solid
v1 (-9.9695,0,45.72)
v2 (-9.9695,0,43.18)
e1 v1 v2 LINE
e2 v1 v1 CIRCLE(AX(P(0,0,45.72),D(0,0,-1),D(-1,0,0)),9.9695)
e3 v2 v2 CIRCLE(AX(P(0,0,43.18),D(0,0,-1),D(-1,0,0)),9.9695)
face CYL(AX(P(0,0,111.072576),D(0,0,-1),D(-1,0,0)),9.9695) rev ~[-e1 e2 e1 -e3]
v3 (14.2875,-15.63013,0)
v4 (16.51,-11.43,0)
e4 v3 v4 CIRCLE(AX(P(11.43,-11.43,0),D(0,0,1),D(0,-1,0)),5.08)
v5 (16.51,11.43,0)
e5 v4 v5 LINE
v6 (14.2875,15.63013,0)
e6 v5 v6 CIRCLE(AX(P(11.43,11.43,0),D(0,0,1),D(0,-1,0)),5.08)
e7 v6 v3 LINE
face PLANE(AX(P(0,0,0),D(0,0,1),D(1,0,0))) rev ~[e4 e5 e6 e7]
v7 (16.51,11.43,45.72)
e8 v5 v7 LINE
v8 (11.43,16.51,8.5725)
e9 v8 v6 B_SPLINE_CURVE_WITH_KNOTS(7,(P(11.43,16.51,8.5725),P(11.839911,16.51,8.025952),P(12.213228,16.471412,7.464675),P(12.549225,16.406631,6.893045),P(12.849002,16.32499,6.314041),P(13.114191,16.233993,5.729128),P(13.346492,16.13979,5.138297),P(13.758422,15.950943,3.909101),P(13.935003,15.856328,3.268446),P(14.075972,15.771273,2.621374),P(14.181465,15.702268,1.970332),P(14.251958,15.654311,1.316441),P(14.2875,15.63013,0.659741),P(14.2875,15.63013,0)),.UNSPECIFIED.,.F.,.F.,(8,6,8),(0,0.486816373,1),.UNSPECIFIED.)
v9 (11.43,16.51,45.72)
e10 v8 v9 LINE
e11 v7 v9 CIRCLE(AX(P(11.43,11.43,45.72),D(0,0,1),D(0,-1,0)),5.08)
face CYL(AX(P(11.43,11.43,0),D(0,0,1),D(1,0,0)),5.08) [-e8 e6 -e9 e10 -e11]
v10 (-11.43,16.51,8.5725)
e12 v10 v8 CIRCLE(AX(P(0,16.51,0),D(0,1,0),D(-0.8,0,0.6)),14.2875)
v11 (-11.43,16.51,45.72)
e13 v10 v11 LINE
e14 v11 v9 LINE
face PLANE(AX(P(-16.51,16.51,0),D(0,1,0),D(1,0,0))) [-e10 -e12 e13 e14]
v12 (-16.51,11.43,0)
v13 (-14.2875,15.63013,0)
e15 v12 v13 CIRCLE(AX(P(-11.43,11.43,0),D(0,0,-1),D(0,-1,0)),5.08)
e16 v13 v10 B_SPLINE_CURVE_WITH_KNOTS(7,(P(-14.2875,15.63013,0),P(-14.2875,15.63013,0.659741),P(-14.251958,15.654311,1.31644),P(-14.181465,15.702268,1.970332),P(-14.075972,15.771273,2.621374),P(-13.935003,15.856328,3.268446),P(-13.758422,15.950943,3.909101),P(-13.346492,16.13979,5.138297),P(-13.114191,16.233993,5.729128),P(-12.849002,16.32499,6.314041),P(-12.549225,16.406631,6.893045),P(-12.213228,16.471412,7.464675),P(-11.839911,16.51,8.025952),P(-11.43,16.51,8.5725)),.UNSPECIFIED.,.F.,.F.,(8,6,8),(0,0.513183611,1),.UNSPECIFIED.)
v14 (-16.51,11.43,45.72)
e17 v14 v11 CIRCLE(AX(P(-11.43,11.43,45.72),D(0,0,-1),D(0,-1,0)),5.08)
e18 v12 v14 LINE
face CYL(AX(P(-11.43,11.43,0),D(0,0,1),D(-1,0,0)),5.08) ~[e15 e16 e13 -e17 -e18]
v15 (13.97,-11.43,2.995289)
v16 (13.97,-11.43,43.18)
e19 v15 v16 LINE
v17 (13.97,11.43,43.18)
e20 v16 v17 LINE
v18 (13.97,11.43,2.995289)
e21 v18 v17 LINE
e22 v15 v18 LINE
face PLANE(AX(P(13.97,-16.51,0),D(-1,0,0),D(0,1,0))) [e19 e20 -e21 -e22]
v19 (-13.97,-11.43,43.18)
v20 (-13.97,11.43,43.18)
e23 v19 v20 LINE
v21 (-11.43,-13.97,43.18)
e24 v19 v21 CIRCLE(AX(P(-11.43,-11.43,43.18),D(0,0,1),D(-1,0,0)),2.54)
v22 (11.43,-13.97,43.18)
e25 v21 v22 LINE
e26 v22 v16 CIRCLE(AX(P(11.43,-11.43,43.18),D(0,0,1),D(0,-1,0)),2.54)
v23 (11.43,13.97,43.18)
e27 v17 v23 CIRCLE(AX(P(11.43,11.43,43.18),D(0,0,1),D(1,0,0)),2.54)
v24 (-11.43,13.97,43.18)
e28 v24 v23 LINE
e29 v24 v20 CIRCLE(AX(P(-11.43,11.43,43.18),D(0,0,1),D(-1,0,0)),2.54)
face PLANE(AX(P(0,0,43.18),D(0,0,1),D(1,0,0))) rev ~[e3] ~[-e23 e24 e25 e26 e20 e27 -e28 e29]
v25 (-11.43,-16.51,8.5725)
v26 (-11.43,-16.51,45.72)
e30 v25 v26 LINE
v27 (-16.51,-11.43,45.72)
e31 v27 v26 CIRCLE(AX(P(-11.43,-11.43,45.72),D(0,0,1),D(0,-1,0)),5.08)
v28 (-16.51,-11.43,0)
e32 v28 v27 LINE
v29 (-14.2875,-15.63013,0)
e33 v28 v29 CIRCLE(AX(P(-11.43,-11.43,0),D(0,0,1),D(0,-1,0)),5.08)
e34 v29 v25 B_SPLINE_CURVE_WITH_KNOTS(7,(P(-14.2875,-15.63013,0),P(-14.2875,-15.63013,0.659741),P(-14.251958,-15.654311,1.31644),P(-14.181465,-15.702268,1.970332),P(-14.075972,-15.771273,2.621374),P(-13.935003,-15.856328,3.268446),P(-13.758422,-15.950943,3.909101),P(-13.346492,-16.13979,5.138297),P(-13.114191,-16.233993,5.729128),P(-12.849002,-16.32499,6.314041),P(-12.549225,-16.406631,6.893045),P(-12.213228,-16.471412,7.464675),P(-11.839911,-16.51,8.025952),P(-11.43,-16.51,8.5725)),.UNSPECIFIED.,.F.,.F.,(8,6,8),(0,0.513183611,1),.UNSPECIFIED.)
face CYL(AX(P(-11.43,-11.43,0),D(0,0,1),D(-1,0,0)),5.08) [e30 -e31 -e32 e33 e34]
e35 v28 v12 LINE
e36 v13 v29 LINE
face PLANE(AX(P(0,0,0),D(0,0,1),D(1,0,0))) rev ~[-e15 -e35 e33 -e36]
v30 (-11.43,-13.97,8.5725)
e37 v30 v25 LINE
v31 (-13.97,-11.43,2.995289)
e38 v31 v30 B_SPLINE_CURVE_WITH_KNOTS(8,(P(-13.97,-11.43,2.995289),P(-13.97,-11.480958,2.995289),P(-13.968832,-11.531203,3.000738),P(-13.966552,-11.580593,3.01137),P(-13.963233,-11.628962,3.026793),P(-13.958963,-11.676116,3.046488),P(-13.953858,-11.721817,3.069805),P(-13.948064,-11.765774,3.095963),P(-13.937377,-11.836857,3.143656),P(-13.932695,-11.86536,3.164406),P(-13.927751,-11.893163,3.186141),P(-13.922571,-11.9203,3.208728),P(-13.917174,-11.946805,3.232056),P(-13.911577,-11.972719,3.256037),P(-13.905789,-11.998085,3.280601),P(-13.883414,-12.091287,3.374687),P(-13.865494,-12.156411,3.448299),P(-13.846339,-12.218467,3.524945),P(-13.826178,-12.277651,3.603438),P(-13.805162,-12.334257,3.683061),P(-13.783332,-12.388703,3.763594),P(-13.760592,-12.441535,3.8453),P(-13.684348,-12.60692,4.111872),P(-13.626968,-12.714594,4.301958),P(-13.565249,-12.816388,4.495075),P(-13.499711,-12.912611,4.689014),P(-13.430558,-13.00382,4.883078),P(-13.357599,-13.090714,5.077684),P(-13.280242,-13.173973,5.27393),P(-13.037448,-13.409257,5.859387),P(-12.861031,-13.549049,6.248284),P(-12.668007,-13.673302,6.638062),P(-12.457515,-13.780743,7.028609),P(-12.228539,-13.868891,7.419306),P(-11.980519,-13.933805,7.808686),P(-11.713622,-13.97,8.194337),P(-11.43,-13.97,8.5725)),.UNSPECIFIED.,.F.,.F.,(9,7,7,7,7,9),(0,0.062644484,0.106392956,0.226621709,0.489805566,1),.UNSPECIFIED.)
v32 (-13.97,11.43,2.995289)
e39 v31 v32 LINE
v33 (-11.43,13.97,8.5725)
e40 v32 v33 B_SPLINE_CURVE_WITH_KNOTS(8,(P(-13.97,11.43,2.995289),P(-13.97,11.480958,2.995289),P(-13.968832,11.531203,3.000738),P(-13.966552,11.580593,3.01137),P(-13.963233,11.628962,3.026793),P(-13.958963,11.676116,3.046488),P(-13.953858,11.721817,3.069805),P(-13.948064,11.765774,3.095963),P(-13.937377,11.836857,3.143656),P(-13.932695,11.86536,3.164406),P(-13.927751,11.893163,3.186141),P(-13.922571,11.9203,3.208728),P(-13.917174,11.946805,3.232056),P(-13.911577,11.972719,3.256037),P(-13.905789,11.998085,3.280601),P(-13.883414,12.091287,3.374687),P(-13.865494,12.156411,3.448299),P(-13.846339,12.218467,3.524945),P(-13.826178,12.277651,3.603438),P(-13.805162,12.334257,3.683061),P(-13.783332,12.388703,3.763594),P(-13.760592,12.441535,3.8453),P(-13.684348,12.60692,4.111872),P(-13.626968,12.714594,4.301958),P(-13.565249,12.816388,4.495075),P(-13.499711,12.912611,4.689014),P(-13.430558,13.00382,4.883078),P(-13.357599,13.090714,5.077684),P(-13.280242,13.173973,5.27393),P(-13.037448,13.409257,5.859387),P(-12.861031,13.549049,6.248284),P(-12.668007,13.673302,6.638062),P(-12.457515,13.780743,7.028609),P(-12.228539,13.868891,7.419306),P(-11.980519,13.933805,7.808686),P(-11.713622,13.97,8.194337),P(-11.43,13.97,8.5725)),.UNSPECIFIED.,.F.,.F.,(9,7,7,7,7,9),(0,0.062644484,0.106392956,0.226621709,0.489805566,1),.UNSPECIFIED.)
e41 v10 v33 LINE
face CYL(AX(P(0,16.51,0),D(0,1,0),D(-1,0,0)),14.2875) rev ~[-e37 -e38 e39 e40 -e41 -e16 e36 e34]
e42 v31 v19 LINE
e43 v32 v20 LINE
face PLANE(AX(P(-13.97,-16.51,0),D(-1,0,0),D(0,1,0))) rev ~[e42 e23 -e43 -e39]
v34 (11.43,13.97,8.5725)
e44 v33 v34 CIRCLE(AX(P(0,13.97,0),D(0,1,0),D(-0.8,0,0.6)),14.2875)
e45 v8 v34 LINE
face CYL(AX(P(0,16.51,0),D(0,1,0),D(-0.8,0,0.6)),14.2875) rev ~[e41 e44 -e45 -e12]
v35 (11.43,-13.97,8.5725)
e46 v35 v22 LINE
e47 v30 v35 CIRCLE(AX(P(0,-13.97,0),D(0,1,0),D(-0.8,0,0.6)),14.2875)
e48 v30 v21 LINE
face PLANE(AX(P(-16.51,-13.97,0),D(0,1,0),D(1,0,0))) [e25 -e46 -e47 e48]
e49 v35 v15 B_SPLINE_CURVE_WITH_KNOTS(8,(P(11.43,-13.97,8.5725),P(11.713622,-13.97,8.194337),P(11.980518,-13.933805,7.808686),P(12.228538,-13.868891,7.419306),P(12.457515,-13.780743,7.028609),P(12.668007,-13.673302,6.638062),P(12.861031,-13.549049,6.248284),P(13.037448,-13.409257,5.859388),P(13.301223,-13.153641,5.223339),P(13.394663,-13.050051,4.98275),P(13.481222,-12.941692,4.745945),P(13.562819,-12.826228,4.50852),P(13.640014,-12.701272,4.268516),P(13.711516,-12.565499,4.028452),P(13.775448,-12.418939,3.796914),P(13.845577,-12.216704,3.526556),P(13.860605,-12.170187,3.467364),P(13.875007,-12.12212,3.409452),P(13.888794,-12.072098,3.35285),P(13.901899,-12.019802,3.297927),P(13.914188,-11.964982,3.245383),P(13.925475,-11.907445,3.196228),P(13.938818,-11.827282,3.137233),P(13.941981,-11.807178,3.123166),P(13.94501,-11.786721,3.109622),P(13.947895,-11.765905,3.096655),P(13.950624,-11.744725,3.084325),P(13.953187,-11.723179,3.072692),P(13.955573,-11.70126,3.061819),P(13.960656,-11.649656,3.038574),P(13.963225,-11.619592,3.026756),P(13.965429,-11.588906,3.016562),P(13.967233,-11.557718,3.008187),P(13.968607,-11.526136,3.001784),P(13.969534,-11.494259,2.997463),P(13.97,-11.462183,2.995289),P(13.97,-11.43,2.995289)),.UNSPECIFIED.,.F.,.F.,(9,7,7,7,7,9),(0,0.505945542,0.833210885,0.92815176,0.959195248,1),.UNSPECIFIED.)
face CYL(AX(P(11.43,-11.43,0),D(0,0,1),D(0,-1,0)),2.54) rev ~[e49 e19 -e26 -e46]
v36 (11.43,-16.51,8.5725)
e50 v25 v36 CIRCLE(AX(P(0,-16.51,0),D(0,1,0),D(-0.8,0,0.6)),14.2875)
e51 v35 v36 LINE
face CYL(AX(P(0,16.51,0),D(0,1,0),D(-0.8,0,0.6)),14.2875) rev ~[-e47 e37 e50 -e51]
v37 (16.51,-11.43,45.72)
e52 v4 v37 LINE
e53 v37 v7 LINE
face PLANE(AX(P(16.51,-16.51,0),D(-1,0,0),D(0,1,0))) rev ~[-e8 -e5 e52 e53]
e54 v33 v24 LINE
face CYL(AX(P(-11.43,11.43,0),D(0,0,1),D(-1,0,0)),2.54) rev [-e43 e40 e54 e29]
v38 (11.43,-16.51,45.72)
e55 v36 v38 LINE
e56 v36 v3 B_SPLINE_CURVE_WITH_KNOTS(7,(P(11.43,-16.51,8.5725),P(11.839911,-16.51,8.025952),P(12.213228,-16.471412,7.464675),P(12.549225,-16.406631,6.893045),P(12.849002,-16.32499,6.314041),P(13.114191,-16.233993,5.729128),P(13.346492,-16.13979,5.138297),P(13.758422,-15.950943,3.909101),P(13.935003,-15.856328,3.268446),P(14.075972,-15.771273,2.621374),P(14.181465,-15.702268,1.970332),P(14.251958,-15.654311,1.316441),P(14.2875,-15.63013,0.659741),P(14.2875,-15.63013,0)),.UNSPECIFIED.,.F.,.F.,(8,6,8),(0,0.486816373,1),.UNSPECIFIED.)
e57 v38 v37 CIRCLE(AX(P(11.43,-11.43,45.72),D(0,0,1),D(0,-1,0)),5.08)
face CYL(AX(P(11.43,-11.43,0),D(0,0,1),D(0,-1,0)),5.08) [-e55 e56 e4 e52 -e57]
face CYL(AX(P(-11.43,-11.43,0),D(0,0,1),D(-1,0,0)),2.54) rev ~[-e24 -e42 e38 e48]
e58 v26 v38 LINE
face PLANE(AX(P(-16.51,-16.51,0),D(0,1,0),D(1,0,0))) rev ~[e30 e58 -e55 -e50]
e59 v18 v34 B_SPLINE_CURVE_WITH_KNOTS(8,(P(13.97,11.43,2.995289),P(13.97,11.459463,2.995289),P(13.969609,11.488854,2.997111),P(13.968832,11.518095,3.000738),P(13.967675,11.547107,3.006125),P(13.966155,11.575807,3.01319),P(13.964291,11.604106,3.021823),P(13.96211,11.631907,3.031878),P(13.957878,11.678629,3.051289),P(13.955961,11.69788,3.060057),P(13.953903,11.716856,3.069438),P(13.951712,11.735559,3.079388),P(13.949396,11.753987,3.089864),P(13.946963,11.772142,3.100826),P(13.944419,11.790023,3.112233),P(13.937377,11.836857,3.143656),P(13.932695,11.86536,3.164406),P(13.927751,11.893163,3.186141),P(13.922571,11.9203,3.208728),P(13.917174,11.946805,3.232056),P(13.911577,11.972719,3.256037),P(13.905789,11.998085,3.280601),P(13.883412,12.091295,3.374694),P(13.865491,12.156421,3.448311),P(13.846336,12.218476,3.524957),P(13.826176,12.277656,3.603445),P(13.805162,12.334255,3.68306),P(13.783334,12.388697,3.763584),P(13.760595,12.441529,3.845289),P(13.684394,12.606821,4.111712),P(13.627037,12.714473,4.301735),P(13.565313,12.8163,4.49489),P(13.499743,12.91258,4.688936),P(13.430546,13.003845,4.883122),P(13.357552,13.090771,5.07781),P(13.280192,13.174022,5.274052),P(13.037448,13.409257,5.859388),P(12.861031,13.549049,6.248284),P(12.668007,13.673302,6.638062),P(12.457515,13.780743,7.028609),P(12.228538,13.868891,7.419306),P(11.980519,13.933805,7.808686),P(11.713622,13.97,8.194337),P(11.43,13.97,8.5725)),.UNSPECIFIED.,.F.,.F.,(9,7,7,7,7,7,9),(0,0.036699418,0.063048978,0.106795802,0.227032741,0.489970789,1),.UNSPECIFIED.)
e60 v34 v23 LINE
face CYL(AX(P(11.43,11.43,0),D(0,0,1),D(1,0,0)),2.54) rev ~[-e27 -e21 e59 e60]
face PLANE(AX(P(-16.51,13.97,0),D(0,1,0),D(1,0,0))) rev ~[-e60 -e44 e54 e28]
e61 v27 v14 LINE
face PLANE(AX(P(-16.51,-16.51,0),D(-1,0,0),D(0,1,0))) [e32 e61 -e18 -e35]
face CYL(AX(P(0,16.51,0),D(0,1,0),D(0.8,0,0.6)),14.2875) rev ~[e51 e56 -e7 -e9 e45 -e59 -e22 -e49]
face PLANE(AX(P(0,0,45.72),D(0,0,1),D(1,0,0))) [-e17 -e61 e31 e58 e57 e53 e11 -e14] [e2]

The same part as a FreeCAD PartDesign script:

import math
import FreeCAD as App
import Part
import Sketcher
Q = App.Units.Quantity


def edges_at(feature, points):
    """Names of the edges that pass closest to the given points."""
    edges = feature.Shape.Edges
    near = lambda p: min(range(len(edges)), key=lambda i: edges[i].distToShape(Part.Vertex(*p))[0])
    return sorted({f"Edge{near(p) + 1}" for p in points})


def faces_at(feature, points):
    """Names of the faces that lie closest to the given points."""
    faces = feature.Shape.Faces
    near = lambda p: min(range(len(faces)), key=lambda i: faces[i].distToShape(Part.Vertex(*p))[0])
    return sorted({f"Face{near(p) + 1}" for p in points})


def add_polygon(sketch, points):
    """Adds a closed chain of lines whose ends are joined by coincident constraints."""
    first, n = sketch.GeometryCount, len(points)
    for a, b in zip(points, points[1:] + points[:1]):
        sketch.addGeometry(Part.LineSegment(App.Vector(*a, 0), App.Vector(*b, 0)), False)
    for i in range(n):
        sketch.addConstraint(Sketcher.Constraint("Coincident", first + i, 2, first + (i + 1) % n, 1))

doc = App.newDocument("Part")
body = doc.addObject("PartDesign::Body", "Body")

# Sketch on XY plane
sketch1 = doc.addObject("Sketcher::SketchObject", "Sketch")
body.addObject(sketch1)
sketch1.AttachmentSupport = (doc.XY_Plane, [""])
sketch1.MapMode = "FlatFace"
add_polygon(sketch1, [(-16.51, 16.51), (-16.51, -16.51), (16.51, -16.51), (16.51, 16.51)])  # lines 0-3
sketch1.addConstraint([
    Sketcher.Constraint("Vertical", 0),
    Sketcher.Constraint("Horizontal", 1),
    Sketcher.Constraint("Vertical", 2),
    Sketcher.Constraint("Horizontal", 3),
    Sketcher.Constraint("Symmetric", 0, 2, 2, 2, -1, 1),
    Sketcher.Constraint("Equal", 3, 0),
    Sketcher.Constraint("DistanceX", 1, 1, 1, 2, Q("1.3 in")),
])
pad1 = doc.addObject("PartDesign::Pad", "Pad")
body.addObject(pad1)
pad1.Profile = sketch1
pad1.Length = Q("1.8 in")
doc.recompute()

fillet = doc.addObject("PartDesign::Fillet", "Fillet")
body.addObject(fillet)
fillet.Base = (pad1, edges_at(pad1, [
    (-16.51, -16.51, 22.86),
    (16.51, -16.51, 22.86),
    (16.51, 16.51, 22.86),
    (-16.51, 16.51, 22.86),
]))
fillet.Radius = Q("0.2 in")
doc.recompute()

thickness = doc.addObject("PartDesign::Thickness", "Thickness")
body.addObject(thickness)
thickness.Base = (fillet, faces_at(fillet, [(0, 0, 0)]))
thickness.Value = Q("0.1 in")
thickness.Reversed = True
thickness.Join = "Arc"

# Sketch on XY plane
sketch2 = doc.addObject("Sketcher::SketchObject", "Sketch001")
body.addObject(sketch2)
sketch2.AttachmentSupport = (doc.XY_Plane, [""])
sketch2.MapMode = "FlatFace"
sketch2.AttachmentOffset = App.Placement(App.Vector(0, 0, 1.8 * 25.4), App.Rotation())
sketch2.addGeometry(Part.Circle(App.Vector(0, 0, 0), App.Vector(0, 0, 1), 9.9695), False)
sketch2.addConstraint([
    Sketcher.Constraint("Coincident", 0, 3, -1, 1),
    Sketcher.Constraint("Diameter", 0, Q("0.785 in")),
])
doc.recompute()
hole = doc.addObject("PartDesign::Hole", "Hole")
body.addObject(hole)
hole.Profile = sketch2
hole.ThreadType = "None"
hole.Diameter = Q("0.785 in")
hole.DepthType = "ThroughAll"

# Sketch on XZ plane
sketch3 = doc.addObject("Sketcher::SketchObject", "Sketch002")
body.addObject(sketch3)
sketch3.AttachmentSupport = (doc.XZ_Plane, [""])
sketch3.MapMode = "FlatFace"
sketch3.AttachmentOffset = App.Placement(App.Vector(0, 0, -0.65 * 25.4), App.Rotation())
sketch3.addGeometry([
    Part.ArcOfCircle(Part.Circle(App.Vector(0, 0, 0), App.Vector(0, 0, 1), 14.2875), math.radians(143.130102), math.radians(180)),
    Part.ArcOfCircle(Part.Circle(App.Vector(0, 0, 0), App.Vector(0, 0, 1), 14.2875), math.radians(36.869898), math.radians(143.130102)),
    Part.ArcOfCircle(Part.Circle(App.Vector(0, 0, 0), App.Vector(0, 0, 1), 14.2875), math.radians(0), math.radians(36.869898)),
    Part.LineSegment(App.Vector(14.2875, 0, 0), App.Vector(-14.2875, 0, 0)),
], False)
sketch3.addConstraint([
    Sketcher.Constraint("Tangent", 0, 1, 1, 2),
    Sketcher.Constraint("Tangent", 1, 1, 2, 2),
    Sketcher.Constraint("Coincident", 2, 1, 3, 1),
    Sketcher.Constraint("Coincident", 3, 2, 0, 2),
    Sketcher.Constraint("Horizontal", 3),
    Sketcher.Constraint("Coincident", 0, 3, -1, 1),
    Sketcher.Constraint("Coincident", 2, 3, -1, 1),
    Sketcher.Constraint("PointOnObject", 2, 1, -1),
    Sketcher.Constraint("Horizontal", 0, 1, 1, 1),
    Sketcher.Constraint("Radius", 0, Q("0.5625 in")),
    Sketcher.Constraint("DistanceX", 0, 1, 1, 1, Q("0.9 in")),
])
pocket1 = doc.addObject("PartDesign::Pocket", "Pocket")
body.addObject(pocket1)
pocket1.Profile = sketch3
pocket1.Type = "ThroughAll"
pocket1.Reversed = True

doc.recompute()
